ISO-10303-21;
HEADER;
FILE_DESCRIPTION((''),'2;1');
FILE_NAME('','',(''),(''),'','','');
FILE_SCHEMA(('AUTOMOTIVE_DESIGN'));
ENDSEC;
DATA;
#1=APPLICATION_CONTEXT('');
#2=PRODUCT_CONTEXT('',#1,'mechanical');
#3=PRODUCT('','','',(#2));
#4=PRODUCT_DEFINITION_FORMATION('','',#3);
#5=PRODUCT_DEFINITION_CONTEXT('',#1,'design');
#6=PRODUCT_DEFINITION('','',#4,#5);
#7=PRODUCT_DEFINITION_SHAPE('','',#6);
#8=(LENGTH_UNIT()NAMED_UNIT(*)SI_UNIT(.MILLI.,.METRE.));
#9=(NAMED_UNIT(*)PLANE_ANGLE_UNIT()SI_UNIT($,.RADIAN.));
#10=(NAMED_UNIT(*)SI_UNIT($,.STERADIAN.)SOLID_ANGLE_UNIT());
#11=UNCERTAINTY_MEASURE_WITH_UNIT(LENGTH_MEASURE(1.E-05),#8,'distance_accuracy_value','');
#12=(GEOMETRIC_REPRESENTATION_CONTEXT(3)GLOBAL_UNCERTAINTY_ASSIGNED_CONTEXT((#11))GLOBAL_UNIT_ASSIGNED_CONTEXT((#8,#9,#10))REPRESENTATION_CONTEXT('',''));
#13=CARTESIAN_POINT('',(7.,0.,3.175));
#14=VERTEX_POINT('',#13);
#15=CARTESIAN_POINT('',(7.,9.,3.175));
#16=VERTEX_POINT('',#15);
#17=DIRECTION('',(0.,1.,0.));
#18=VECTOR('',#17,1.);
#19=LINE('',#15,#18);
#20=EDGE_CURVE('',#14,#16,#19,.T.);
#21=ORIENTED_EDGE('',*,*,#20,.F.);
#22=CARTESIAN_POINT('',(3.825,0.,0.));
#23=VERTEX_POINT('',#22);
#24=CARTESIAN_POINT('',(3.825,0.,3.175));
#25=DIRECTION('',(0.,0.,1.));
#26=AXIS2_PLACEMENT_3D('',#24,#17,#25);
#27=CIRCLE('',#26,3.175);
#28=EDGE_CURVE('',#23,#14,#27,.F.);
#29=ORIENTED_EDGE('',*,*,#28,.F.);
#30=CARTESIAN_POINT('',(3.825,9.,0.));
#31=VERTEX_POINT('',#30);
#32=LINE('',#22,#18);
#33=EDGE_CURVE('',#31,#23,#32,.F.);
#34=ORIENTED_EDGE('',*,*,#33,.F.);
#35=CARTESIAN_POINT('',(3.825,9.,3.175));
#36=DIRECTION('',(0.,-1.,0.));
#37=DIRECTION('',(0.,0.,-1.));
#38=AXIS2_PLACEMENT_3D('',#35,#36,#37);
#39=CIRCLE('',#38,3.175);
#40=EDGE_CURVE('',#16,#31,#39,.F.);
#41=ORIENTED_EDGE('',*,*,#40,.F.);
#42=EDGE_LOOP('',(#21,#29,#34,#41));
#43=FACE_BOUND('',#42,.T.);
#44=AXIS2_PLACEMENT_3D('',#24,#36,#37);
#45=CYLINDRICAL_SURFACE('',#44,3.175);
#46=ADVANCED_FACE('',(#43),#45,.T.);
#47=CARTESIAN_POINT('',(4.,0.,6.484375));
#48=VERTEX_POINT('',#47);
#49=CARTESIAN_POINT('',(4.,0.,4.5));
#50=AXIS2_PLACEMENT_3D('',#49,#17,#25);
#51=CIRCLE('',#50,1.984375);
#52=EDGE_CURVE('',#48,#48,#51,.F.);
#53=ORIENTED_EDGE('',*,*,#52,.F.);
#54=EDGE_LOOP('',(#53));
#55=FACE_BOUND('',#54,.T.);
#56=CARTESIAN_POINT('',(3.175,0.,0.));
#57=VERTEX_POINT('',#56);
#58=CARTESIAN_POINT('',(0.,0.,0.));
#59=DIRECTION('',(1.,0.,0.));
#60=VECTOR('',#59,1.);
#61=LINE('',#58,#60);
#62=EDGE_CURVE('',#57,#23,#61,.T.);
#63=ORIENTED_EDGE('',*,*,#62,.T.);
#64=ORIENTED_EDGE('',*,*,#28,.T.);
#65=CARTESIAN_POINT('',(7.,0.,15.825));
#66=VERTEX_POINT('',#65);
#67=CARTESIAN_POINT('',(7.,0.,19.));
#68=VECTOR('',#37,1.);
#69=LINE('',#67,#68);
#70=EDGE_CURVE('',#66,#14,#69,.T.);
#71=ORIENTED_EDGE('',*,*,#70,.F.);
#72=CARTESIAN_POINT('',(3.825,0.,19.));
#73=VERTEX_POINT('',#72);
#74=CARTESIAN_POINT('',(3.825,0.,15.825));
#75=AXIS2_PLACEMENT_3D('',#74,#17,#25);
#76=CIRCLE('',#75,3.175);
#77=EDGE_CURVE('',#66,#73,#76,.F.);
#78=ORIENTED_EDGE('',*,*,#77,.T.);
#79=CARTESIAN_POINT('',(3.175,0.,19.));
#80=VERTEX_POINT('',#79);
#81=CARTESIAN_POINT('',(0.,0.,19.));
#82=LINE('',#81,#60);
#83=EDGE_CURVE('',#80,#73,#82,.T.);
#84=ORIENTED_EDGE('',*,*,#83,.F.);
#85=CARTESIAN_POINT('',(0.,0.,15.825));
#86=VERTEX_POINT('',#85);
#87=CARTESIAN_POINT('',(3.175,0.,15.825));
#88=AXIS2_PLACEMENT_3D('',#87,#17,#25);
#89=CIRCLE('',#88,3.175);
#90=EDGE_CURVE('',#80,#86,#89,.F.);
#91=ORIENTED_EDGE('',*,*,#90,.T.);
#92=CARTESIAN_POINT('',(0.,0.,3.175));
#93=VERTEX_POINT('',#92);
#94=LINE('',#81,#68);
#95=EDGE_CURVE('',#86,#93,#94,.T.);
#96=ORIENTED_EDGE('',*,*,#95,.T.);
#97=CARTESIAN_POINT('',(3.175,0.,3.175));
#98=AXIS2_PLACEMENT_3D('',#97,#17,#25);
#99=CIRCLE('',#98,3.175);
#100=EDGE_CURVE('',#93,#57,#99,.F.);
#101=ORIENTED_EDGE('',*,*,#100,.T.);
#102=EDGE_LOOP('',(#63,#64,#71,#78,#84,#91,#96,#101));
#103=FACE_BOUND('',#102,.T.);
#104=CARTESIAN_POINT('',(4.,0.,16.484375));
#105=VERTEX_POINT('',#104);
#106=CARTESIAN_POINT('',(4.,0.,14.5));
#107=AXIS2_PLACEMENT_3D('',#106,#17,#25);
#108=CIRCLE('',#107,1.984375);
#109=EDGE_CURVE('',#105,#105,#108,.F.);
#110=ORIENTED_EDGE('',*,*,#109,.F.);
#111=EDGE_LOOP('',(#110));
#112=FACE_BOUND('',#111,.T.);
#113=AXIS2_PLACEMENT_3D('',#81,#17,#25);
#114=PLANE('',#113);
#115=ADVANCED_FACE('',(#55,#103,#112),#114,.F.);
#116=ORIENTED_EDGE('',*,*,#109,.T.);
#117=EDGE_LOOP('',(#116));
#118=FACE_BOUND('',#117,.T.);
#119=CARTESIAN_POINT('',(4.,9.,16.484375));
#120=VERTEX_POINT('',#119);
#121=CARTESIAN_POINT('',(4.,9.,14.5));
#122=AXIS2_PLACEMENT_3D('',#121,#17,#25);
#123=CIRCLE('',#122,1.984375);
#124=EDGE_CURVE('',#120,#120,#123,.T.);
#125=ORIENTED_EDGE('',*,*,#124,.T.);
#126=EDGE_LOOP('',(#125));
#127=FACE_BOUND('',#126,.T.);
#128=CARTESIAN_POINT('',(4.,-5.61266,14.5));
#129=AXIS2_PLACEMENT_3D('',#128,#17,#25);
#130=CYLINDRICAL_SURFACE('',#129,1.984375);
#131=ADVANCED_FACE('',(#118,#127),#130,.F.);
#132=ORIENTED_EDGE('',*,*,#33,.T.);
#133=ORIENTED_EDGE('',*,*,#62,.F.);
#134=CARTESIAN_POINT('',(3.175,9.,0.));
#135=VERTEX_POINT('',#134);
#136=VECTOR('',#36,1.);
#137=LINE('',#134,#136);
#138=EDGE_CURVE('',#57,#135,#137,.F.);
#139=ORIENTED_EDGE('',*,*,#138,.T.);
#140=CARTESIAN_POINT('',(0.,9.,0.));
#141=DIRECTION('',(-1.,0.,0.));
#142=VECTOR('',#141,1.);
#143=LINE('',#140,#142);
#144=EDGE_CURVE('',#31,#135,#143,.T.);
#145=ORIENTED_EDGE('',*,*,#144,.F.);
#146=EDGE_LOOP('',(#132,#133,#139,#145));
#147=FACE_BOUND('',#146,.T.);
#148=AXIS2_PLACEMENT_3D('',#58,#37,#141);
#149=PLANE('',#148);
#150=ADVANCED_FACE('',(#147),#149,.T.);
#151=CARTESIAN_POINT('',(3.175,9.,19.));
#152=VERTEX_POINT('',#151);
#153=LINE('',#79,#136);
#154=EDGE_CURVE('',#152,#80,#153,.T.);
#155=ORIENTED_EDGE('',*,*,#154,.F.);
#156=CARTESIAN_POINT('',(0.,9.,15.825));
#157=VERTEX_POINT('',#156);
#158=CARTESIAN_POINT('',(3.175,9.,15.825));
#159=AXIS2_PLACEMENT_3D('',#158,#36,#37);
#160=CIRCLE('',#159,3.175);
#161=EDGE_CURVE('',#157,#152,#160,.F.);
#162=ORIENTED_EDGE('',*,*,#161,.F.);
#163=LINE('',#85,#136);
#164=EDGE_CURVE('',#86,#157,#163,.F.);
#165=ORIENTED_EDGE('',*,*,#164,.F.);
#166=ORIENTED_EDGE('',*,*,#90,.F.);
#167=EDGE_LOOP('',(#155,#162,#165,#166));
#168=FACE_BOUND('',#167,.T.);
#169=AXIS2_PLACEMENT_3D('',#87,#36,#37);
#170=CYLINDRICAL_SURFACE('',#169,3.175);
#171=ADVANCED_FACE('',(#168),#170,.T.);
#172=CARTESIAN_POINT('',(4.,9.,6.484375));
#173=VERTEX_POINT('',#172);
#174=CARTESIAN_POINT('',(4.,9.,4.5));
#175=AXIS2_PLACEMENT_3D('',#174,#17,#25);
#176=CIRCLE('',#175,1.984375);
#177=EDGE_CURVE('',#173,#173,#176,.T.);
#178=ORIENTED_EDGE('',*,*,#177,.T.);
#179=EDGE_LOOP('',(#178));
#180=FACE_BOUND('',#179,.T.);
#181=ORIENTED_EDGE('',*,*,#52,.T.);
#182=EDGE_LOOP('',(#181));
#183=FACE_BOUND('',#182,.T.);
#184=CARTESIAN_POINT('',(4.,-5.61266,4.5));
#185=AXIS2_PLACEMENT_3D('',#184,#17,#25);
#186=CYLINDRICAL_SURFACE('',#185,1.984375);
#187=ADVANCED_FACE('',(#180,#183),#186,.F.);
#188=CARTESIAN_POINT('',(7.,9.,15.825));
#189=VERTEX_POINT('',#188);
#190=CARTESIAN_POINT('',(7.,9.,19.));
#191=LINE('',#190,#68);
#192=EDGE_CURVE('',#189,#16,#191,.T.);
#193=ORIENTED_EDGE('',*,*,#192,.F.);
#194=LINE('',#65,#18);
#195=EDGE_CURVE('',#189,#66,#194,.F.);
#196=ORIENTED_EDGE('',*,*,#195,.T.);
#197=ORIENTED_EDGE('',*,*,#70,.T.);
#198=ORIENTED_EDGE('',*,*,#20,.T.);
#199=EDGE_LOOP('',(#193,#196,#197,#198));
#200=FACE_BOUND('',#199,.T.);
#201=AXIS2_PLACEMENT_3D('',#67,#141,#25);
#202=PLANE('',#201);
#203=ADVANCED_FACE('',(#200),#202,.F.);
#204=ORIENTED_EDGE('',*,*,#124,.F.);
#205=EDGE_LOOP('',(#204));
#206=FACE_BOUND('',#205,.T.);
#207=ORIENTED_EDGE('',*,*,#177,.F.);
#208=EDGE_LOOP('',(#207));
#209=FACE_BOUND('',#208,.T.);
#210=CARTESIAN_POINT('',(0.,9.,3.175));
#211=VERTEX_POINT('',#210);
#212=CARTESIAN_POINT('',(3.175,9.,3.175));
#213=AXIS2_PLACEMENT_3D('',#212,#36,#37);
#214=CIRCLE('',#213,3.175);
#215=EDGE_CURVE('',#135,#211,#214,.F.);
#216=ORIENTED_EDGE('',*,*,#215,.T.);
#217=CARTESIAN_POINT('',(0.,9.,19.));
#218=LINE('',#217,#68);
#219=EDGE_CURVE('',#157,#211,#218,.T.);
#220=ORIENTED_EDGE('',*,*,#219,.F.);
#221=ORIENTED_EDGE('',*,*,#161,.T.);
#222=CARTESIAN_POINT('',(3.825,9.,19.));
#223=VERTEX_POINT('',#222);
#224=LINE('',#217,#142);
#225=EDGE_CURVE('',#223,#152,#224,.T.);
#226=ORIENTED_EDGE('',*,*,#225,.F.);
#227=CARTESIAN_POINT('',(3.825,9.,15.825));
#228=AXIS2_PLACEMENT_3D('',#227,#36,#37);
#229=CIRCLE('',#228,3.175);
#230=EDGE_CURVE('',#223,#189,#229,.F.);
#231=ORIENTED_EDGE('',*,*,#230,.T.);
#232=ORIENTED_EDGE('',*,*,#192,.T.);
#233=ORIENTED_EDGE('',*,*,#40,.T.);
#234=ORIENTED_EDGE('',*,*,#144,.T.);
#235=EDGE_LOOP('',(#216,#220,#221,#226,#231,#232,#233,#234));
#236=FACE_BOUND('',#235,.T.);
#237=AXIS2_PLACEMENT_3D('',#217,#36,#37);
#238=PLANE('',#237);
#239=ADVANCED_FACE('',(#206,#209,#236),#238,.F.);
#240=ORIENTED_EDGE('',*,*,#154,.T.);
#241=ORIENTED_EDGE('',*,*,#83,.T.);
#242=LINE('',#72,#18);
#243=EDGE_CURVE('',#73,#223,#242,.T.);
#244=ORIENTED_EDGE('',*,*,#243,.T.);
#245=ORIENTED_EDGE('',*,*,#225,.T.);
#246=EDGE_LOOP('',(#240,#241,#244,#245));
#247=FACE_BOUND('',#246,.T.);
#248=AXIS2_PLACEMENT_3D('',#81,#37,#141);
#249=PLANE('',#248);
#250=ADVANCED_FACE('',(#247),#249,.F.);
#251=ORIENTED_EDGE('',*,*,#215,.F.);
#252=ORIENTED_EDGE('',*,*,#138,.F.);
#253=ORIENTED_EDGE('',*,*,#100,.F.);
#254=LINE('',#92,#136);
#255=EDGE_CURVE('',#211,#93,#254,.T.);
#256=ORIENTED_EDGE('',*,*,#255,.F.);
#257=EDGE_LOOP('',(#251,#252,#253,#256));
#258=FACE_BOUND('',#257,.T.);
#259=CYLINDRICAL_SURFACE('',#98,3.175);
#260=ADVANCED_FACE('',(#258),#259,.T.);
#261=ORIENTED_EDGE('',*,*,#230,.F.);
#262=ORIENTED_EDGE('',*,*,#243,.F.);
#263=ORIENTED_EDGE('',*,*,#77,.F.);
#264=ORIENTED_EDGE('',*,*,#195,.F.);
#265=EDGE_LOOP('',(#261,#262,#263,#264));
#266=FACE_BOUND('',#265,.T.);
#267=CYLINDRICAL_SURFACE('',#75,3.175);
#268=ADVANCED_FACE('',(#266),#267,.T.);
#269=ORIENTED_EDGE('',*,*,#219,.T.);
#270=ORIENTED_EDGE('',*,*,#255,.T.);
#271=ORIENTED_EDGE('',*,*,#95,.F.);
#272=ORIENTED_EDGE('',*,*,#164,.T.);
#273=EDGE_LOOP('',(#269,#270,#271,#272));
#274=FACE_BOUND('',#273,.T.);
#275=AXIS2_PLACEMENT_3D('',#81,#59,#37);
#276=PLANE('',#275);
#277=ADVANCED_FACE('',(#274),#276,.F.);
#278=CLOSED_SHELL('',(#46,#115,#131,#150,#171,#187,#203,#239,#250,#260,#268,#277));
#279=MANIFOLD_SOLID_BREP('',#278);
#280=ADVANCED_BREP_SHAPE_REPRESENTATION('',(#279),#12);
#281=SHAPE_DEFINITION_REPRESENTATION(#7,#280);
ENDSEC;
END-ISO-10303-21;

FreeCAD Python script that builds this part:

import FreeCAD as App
import Part
import Sketcher
from FreeCAD import Vector
Q = App.Units.Quantity


def edges_at(feature, points):
    """Names of the edges that pass closest to the given points."""
    edges = feature.Shape.Edges
    near = lambda p: min(range(len(edges)), key=lambda i: edges[i].distToShape(Part.Vertex(*p))[0])
    return sorted({f"Edge{near(p) + 1}" for p in points})


def add_polygon(sketch, points):
    """Adds a closed chain of lines whose ends are joined by coincident constraints."""
    first, n = sketch.GeometryCount, len(points)
    for a, b in zip(points, points[1:] + points[:1]):
        sketch.addGeometry(Part.LineSegment(App.Vector(*a, 0), App.Vector(*b, 0)), False)
    for i in range(n):
        sketch.addConstraint(Sketcher.Constraint("Coincident", first + i, 2, first + (i + 1) % n, 1))

doc = App.newDocument("Part")
body = doc.addObject("PartDesign::Body", "Body")

# Sketch on XY plane
sketch1 = doc.addObject("Sketcher::SketchObject", "Sketch")
body.addObject(sketch1)
sketch1.AttachmentSupport = (doc.XY_Plane, [""])
sketch1.MapMode = "FlatFace"
add_polygon(sketch1, [(0, 9), (0, 0), (7, 0), (7, 9)])  # lines 0-3
sketch1.addConstraint([
    Sketcher.Constraint("Vertical", 0),
    Sketcher.Constraint("Horizontal", 1),
    Sketcher.Constraint("Vertical", 2),
    Sketcher.Constraint("Horizontal", 3),
    Sketcher.Constraint("Coincident", 0, 2, -1, 1),
    Sketcher.Constraint("DistanceX", 1, 1, 1, 2, Q("7 mm")),
    Sketcher.Constraint("DistanceY", 0, 2, 0, 1, Q("9 mm")),
])
pad1 = doc.addObject("PartDesign::Pad", "Pad")
body.addObject(pad1)
pad1.Profile = sketch1
pad1.Length = 19

# Sketch on XZ plane
sketch2 = doc.addObject("Sketcher::SketchObject", "Sketch001")
body.addObject(sketch2)
sketch2.AttachmentSupport = (doc.XZ_Plane, [""])
sketch2.MapMode = "FlatFace"
sketch2.AttachmentOffset = App.Placement(Vector(0, 0, -9), App.Rotation())
sketch2.addGeometry([
    Part.Circle(Vector(4, 4.5, 0), Vector(0, 0, 1), 1.984375),
    Part.Circle(Vector(4, 14.5, 0), Vector(0, 0, 1), 1.984375),
], False)
sketch2.addConstraint([
    Sketcher.Constraint("Equal", 0, 1),
    Sketcher.Constraint("Vertical", 0, 3, 1, 3),
    Sketcher.Constraint("DistanceX", -1, 1, 0, 3, Q("4 mm")),
    Sketcher.Constraint("DistanceY", 0, 3, 1, 3, Q("10 mm")),
    Sketcher.Constraint("DistanceY", -1, 1, 0, 3, Q("4.5 mm")),
    Sketcher.Constraint("Diameter", 0, Q("3.96875 mm")),
])
pocket1 = doc.addObject("PartDesign::Pocket", "Pocket")
body.addObject(pocket1)
pocket1.Profile = sketch2
pocket1.Length = 9
pocket1.Reversed = True
doc.recompute()

fillet = doc.addObject("PartDesign::Fillet", "Fillet")
body.addObject(fillet)
fillet.Base = (pocket1, edges_at(pocket1, [
    (7, 4.5, 19),
    (0, 4.5, 19),
    (7, 4.5, 0),
    (0, 4.5, 0),
]))
fillet.Radius = 3.175

doc.recompute()
